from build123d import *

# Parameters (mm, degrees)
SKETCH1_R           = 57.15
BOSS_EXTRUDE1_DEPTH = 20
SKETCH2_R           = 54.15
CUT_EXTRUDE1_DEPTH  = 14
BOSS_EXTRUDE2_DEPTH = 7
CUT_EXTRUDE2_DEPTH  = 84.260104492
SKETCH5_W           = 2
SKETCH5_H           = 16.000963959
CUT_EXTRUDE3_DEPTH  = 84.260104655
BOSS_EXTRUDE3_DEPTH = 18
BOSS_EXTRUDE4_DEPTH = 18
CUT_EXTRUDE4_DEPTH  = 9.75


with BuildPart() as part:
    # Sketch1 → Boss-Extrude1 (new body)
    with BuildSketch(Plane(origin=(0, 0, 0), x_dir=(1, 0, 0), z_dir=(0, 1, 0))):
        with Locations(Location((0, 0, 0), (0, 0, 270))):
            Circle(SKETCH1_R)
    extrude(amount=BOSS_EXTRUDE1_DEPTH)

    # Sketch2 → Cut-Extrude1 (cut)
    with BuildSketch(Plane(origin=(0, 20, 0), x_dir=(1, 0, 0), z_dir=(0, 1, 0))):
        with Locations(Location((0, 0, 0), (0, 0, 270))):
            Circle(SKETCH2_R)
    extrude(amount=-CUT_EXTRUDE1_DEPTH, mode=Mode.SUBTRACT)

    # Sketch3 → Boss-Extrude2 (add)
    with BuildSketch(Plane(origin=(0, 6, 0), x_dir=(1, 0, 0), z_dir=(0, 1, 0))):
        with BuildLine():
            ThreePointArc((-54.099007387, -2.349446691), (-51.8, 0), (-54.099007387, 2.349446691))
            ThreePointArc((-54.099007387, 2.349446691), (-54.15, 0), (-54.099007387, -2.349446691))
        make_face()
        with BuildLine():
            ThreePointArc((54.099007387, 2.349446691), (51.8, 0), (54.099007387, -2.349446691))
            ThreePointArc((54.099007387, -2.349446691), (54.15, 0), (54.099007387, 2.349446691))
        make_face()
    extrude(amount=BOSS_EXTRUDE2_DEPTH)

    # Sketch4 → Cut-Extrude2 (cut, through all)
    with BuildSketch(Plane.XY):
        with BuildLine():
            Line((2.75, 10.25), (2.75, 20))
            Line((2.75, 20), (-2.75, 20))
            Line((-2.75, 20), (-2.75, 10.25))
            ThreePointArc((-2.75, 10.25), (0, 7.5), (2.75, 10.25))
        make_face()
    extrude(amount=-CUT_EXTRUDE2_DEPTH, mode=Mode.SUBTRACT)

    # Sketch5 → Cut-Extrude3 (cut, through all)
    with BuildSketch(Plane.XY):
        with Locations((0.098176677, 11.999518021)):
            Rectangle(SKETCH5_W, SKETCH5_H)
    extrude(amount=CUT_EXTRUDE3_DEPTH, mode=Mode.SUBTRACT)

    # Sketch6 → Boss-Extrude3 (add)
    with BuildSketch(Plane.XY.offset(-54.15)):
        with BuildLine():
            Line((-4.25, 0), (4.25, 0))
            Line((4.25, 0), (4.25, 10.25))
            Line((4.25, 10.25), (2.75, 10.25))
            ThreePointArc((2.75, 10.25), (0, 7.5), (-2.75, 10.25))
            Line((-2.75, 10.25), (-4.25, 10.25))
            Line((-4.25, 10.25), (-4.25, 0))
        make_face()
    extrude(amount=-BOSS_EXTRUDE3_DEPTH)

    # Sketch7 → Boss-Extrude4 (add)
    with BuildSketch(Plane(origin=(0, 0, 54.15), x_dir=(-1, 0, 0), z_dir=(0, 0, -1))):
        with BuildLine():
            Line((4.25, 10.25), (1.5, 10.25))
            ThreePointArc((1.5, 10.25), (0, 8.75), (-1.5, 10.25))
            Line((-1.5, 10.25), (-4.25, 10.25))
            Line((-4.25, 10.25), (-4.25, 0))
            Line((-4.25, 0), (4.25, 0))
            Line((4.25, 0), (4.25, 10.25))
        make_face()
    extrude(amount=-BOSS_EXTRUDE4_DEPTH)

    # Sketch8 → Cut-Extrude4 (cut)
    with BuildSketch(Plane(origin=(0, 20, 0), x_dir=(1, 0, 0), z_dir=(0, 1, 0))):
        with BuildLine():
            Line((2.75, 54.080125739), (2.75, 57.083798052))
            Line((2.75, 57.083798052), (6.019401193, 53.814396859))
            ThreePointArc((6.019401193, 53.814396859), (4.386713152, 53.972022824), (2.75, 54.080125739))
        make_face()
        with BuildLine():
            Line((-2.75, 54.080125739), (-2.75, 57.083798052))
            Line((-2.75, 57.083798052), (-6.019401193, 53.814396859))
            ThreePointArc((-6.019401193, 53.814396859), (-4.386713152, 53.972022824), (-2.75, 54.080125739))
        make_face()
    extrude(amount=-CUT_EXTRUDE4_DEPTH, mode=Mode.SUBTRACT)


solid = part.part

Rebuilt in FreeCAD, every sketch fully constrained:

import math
import FreeCAD as App
import Part
import Sketcher

V = App.Vector

doc = App.newDocument("Part")
body = doc.addObject("PartDesign::Body", "Body")

# Sketch on XZ plane
sketch1 = body.newObject("Sketcher::SketchObject", "Sketch")
sketch1.AttachmentSupport = (doc.getObject("XZ_Plane"), [""])
sketch1.MapMode = "FlatFace"
sketch1.addGeometry(Part.Circle(V(0, 0, 0), V(0, 0, 1), 57.15), False)
sketch1.addConstraint(Sketcher.Constraint("Coincident", 0, 3, -1, 1))
sketch1.addConstraint(Sketcher.Constraint("Diameter", 0, 114.3))
pad1 = body.newObject("PartDesign::Pad", "Pad")
pad1.Profile = sketch1
pad1.Length = 20
pad1.Reversed = True

# Sketch on XZ plane
sketch2 = body.newObject("Sketcher::SketchObject", "Sketch001")
sketch2.AttachmentSupport = (doc.getObject("XZ_Plane"), [""])
sketch2.MapMode = "FlatFace"
sketch2.AttachmentOffset = App.Placement(V(0, 0, -20), App.Rotation())
sketch2.addGeometry(Part.Circle(V(0, 0, 0), V(0, 0, 1), 54.15), False)
sketch2.addConstraint(Sketcher.Constraint("Coincident", 0, 3, -1, 1))
sketch2.addConstraint(Sketcher.Constraint("Diameter", 0, 108.3))
pocket1 = body.newObject("PartDesign::Pocket", "Pocket")
pocket1.Profile = sketch2
pocket1.Length = 14
pocket1.Reversed = True

# Sketch on XZ plane
sketch3 = body.newObject("Sketcher::SketchObject", "Sketch002")
sketch3.AttachmentSupport = (doc.getObject("XZ_Plane"), [""])
sketch3.MapMode = "FlatFace"
sketch3.AttachmentOffset = App.Placement(V(0, 0, -6), App.Rotation())
sketch3.addGeometry(Part.ArcOfCircle(Part.Circle(V(-54.15, 0, 0), V(0, 0, 1), 2.35), math.radians(-88.756642), math.radians(88.756642)), False)
sketch3.addGeometry(Part.ArcOfCircle(Part.Circle(V(0, 0, 0), V(0, 0, 1), 54.15), math.radians(177.513284), math.radians(182.486716)), False)
sketch3.addGeometry(Part.ArcOfCircle(Part.Circle(V(54.15, 0, 0), V(0, 0, 1), 2.35), math.radians(91.243358), math.radians(268.756642)), False)
sketch3.addGeometry(Part.ArcOfCircle(Part.Circle(V(0, 0, 0), V(0, 0, 1), 54.15), math.radians(-2.486716), math.radians(2.486716)), False)
sketch3.addConstraint(Sketcher.Constraint("Coincident", 0, 1, 1, 2))
sketch3.addConstraint(Sketcher.Constraint("Coincident", 1, 1, 0, 2))
sketch3.addConstraint(Sketcher.Constraint("Coincident", 2, 1, 3, 2))
sketch3.addConstraint(Sketcher.Constraint("Coincident", 3, 1, 2, 2))
sketch3.addConstraint(Sketcher.Constraint("Coincident", 1, 3, -1, 1))
sketch3.addConstraint(Sketcher.Constraint("Coincident", 3, 3, -1, 1))
sketch3.addConstraint(Sketcher.Constraint("Equal", 0, 2))
sketch3.addConstraint(Sketcher.Constraint("Equal", 1, 3))
sketch3.addConstraint(Sketcher.Constraint("Symmetric", 0, 3, 2, 3, -1, 1))
sketch3.addConstraint(Sketcher.Constraint("PointOnObject", 0, 3, -1))
sketch3.addConstraint(Sketcher.Constraint("Radius", 0, 2.35))
sketch3.addConstraint(Sketcher.Constraint("Radius", 1, 54.15))
sketch3.addConstraint(Sketcher.Constraint("DistanceX", 0, 3, 2, 3, 108.3))
pad2 = body.newObject("PartDesign::Pad", "Pad001")
pad2.Profile = sketch3
pad2.Length = 7
pad2.Reversed = True

# Sketch on XY plane
sketch4 = body.newObject("Sketcher::SketchObject", "Sketch003")
sketch4.AttachmentSupport = (doc.getObject("XY_Plane"), [""])
sketch4.MapMode = "FlatFace"
sketch4.addGeometry(Part.LineSegment(V(2.75, 10.25, 0), V(2.75, 20, 0)), False)
sketch4.addGeometry(Part.LineSegment(V(2.75, 20, 0), V(-2.75, 20, 0)), False)
sketch4.addGeometry(Part.LineSegment(V(-2.75, 20, 0), V(-2.75, 10.25, 0)), False)
sketch4.addGeometry(Part.ArcOfCircle(Part.Circle(V(0, 10.25, 0), V(0, 0, 1), 2.75), math.radians(180), math.radians(360)), False)
sketch4.addConstraint(Sketcher.Constraint("Coincident", 0, 2, 1, 1))
sketch4.addConstraint(Sketcher.Constraint("Coincident", 1, 2, 2, 1))
sketch4.addConstraint(Sketcher.Constraint("Tangent", 2, 2, 3, 1))
sketch4.addConstraint(Sketcher.Constraint("Tangent", 3, 2, 0, 1))
sketch4.addConstraint(Sketcher.Constraint("Vertical", 0))
sketch4.addConstraint(Sketcher.Constraint("Horizontal", 1))
sketch4.addConstraint(Sketcher.Constraint("Vertical", 2))
sketch4.addConstraint(Sketcher.Constraint("PointOnObject", 3, 3, -2))
sketch4.addConstraint(Sketcher.Constraint("Radius", 3, 2.75))
sketch4.addConstraint(Sketcher.Constraint("DistanceY", -1, 1, 0, 2, 20.0))
sketch4.addConstraint(Sketcher.Constraint("DistanceY", 0, 1, 0, 2, 9.75))
pocket2 = body.newObject("PartDesign::Pocket", "Pocket001")
pocket2.Profile = sketch4
pocket2.Type = "ThroughAll"

# Sketch on XY plane
sketch5 = body.newObject("Sketcher::SketchObject", "Sketch004")
sketch5.AttachmentSupport = (doc.getObject("XY_Plane"), [""])
sketch5.MapMode = "FlatFace"
sketch5.addGeometry(Part.LineSegment(V(-0.901823, 20, 0), V(-0.901823, 3.999036, 0)), False)
sketch5.addGeometry(Part.LineSegment(V(-0.901823, 3.999036, 0), V(1.098177, 3.999036, 0)), False)
sketch5.addGeometry(Part.LineSegment(V(1.098177, 3.999036, 0), V(1.098177, 20, 0)), False)
sketch5.addGeometry(Part.LineSegment(V(1.098177, 20, 0), V(-0.901823, 20, 0)), False)
sketch5.addConstraint(Sketcher.Constraint("Coincident", 0, 2, 1, 1))
sketch5.addConstraint(Sketcher.Constraint("Coincident", 1, 2, 2, 1))
sketch5.addConstraint(Sketcher.Constraint("Coincident", 2, 2, 3, 1))
sketch5.addConstraint(Sketcher.Constraint("Coincident", 3, 2, 0, 1))
sketch5.addConstraint(Sketcher.Constraint("Vertical", 0))
sketch5.addConstraint(Sketcher.Constraint("Horizontal", 1))
sketch5.addConstraint(Sketcher.Constraint("Vertical", 2))
sketch5.addConstraint(Sketcher.Constraint("Horizontal", 3))
sketch5.addConstraint(Sketcher.Constraint("DistanceX", 1, 1, 1, 2, 2.0))
sketch5.addConstraint(Sketcher.Constraint("DistanceY", -1, 1, 2, 2, 20.0))
sketch5.addConstraint(Sketcher.Constraint("DistanceY", 0, 2, 0, 1, 16.000964))
sketch5.addConstraint(Sketcher.Constraint("DistanceX", 0, 2, -1, 1, 0.901823))
pocket3 = body.newObject("PartDesign::Pocket", "Pocket002")
pocket3.Profile = sketch5
pocket3.Type = "ThroughAll"
pocket3.Reversed = True

# Sketch on XY plane
sketch6 = body.newObject("Sketcher::SketchObject", "Sketch005")
sketch6.AttachmentSupport = (doc.getObject("XY_Plane"), [""])
sketch6.MapMode = "FlatFace"
sketch6.AttachmentOffset = App.Placement(V(0, 0, -54.15), App.Rotation())
sketch6.addGeometry(Part.LineSegment(V(-4.25, 0, 0), V(4.25, 0, 0)), False)
sketch6.addGeometry(Part.LineSegment(V(4.25, 0, 0), V(4.25, 10.25, 0)), False)
sketch6.addGeometry(Part.LineSegment(V(4.25, 10.25, 0), V(2.75, 10.25, 0)), False)
sketch6.addGeometry(Part.ArcOfCircle(Part.Circle(V(0, 10.25, 0), V(0, 0, 1), 2.75), math.radians(180), math.radians(360)), False)
sketch6.addGeometry(Part.LineSegment(V(-2.75, 10.25, 0), V(-4.25, 10.25, 0)), False)
sketch6.addGeometry(Part.LineSegment(V(-4.25, 10.25, 0), V(-4.25, 0, 0)), False)
sketch6.addConstraint(Sketcher.Constraint("Coincident", 0, 2, 1, 1))
sketch6.addConstraint(Sketcher.Constraint("Coincident", 1, 2, 2, 1))
sketch6.addConstraint(Sketcher.Constraint("Coincident", 2, 2, 3, 2))
sketch6.addConstraint(Sketcher.Constraint("Coincident", 3, 1, 4, 1))
sketch6.addConstraint(Sketcher.Constraint("Coincident", 4, 2, 5, 1))
sketch6.addConstraint(Sketcher.Constraint("Coincident", 5, 2, 0, 1))
sketch6.addConstraint(Sketcher.Constraint("Horizontal", 0))
sketch6.addConstraint(Sketcher.Constraint("Vertical", 1))
sketch6.addConstraint(Sketcher.Constraint("Horizontal", 2))
sketch6.addConstraint(Sketcher.Constraint("Horizontal", 4))
sketch6.addConstraint(Sketcher.Constraint("Vertical", 5))
sketch6.addConstraint(Sketcher.Constraint("Symmetric", 0, 2, 5, 2, -1, 1))
sketch6.addConstraint(Sketcher.Constraint("Symmetric", 2, 2, 3, 1, -2))
sketch6.addConstraint(Sketcher.Constraint("Horizontal", 3, 3, 1, 2))
sketch6.addConstraint(Sketcher.Constraint("Radius", 3, 2.75))
sketch6.addConstraint(Sketcher.Constraint("DistanceX", 0, 1, 0, 2, 8.5))
sketch6.addConstraint(Sketcher.Constraint("DistanceY", 1, 1, 1, 2, 10.25))
pad3 = body.newObject("PartDesign::Pad", "Pad002")
pad3.Profile = sketch6
pad3.Length = 18
pad3.Reversed = True

# Sketch on XY plane
sketch7 = body.newObject("Sketcher::SketchObject", "Sketch006")
sketch7.AttachmentSupport = (doc.getObject("XY_Plane"), [""])
sketch7.MapMode = "FlatFace"
sketch7.AttachmentOffset = App.Placement(V(0, 0, 54.15), App.Rotation())
sketch7.addGeometry(Part.LineSegment(V(-4.25, 10.25, 0), V(-1.5, 10.25, 0)), False)
sketch7.addGeometry(Part.ArcOfCircle(Part.Circle(V(0, 10.25, 0), V(0, 0, 1), 1.5), math.radians(180), math.radians(360)), False)
sketch7.addGeometry(Part.LineSegment(V(1.5, 10.25, 0), V(4.25, 10.25, 0)), False)
sketch7.addGeometry(Part.LineSegment(V(4.25, 10.25, 0), V(4.25, 0, 0)), False)
sketch7.addGeometry(Part.LineSegment(V(4.25, 0, 0), V(-4.25, 0, 0)), False)
sketch7.addGeometry(Part.LineSegment(V(-4.25, 0, 0), V(-4.25, 10.25, 0)), False)
sketch7.addConstraint(Sketcher.Constraint("Coincident", 0, 2, 1, 1))
sketch7.addConstraint(Sketcher.Constraint("Coincident", 1, 2, 2, 1))
sketch7.addConstraint(Sketcher.Constraint("Coincident", 2, 2, 3, 1))
sketch7.addConstraint(Sketcher.Constraint("Coincident", 3, 2, 4, 1))
sketch7.addConstraint(Sketcher.Constraint("Coincident", 4, 2, 5, 1))
sketch7.addConstraint(Sketcher.Constraint("Coincident", 5, 2, 0, 1))
sketch7.addConstraint(Sketcher.Constraint("Horizontal", 0))
sketch7.addConstraint(Sketcher.Constraint("Horizontal", 2))
sketch7.addConstraint(Sketcher.Constraint("Vertical", 3))
sketch7.addConstraint(Sketcher.Constraint("Horizontal", 4))
sketch7.addConstraint(Sketcher.Constraint("Vertical", 5))
sketch7.addConstraint(Sketcher.Constraint("Symmetric", 3, 2, 4, 2, -1, 1))
sketch7.addConstraint(Sketcher.Constraint("Symmetric", 0, 2, 1, 2, -2))
sketch7.addConstraint(Sketcher.Constraint("Horizontal", 1, 3, 0, 2))
sketch7.addConstraint(Sketcher.Constraint("Radius", 1, 1.5))
sketch7.addConstraint(Sketcher.Constraint("DistanceX", 4, 2, 4, 1, 8.5))
sketch7.addConstraint(Sketcher.Constraint("DistanceY", 3, 2, 3, 1, 10.25))
pad4 = body.newObject("PartDesign::Pad", "Pad003")
pad4.Profile = sketch7
pad4.Length = 18

# Sketch on XZ plane
sketch8 = body.newObject("Sketcher::SketchObject", "Sketch007")
sketch8.AttachmentSupport = (doc.getObject("XZ_Plane"), [""])
sketch8.MapMode = "FlatFace"
sketch8.AttachmentOffset = App.Placement(V(0, 0, -20), App.Rotation())
sketch8.addGeometry(Part.LineSegment(V(2.75, -57.083798, 0), V(2.75, -54.080126, 0)), False)
sketch8.addGeometry(Part.ArcOfCircle(Part.Circle(V(0, 0, 0), V(0, 0, 1), 54.15), math.radians(-87.08899), math.radians(-83.617718)), False)
sketch8.addGeometry(Part.LineSegment(V(6.019401, -53.814397, 0), V(2.75, -57.083798, 0)), False)
sketch8.addGeometry(Part.LineSegment(V(-2.75, -54.080126, 0), V(-2.75, -57.083798, 0)), False)
sketch8.addGeometry(Part.LineSegment(V(-2.75, -57.083798, 0), V(-6.019401, -53.814397, 0)), False)
sketch8.addGeometry(Part.ArcOfCircle(Part.Circle(V(0, 0, 0), V(0, 0, 1), 54.15), math.radians(-96.382282), math.radians(-92.91101)), False)
sketch8.addConstraint(Sketcher.Constraint("Coincident", 0, 2, 1, 1))
sketch8.addConstraint(Sketcher.Constraint("Coincident", 1, 2, 2, 1))
sketch8.addConstraint(Sketcher.Constraint("Coincident", 2, 2, 0, 1))
sketch8.addConstraint(Sketcher.Constraint("Coincident", 3, 2, 4, 1))
sketch8.addConstraint(Sketcher.Constraint("Coincident", 4, 2, 5, 1))
sketch8.addConstraint(Sketcher.Constraint("Coincident", 5, 2, 3, 1))
sketch8.addConstraint(Sketcher.Constraint("Vertical", 0))
sketch8.addConstraint(Sketcher.Constraint("Vertical", 3))
sketch8.addConstraint(Sketcher.Constraint("Coincident", 1, 3, -1, 1))
sketch8.addConstraint(Sketcher.Constraint("Coincident", 5, 3, -1, 1))
sketch8.addConstraint(Sketcher.Constraint("Equal", 1, 5))
sketch8.addConstraint(Sketcher.Constraint("Symmetric", 2, 2, 3, 2, -2))
sketch8.addConstraint(Sketcher.Constraint("Perpendicular", 2, 4))
sketch8.addConstraint(Sketcher.Constraint("Horizontal", 1, 2, 4, 2))
sketch8.addConstraint(Sketcher.Constraint("Radius", 1, 54.15))
sketch8.addConstraint(Sketcher.Constraint("DistanceX", 3, 2, 2, 2, 5.5))
sketch8.addConstraint(Sketcher.Constraint("DistanceX", -1, 1, 1, 2, 6.019401))
pocket4 = body.newObject("PartDesign::Pocket", "Pocket003")
pocket4.Profile = sketch8
pocket4.Length = 9.75
pocket4.Reversed = True

doc.recompute()
